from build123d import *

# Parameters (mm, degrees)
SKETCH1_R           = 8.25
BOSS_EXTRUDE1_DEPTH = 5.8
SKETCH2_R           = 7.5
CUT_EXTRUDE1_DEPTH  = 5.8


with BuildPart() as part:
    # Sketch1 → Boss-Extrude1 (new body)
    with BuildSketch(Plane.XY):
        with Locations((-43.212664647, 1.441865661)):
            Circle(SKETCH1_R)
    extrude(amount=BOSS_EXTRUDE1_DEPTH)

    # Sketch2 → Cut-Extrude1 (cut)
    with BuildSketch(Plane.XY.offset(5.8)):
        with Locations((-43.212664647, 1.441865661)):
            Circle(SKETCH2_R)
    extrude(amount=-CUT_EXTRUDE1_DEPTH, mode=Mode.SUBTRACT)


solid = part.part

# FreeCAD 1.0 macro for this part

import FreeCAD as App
import Part
import Sketcher

V = App.Vector
Q = App.Units.Quantity

doc = App.newDocument("Part")
body = doc.addObject("PartDesign::Body", "Body")

sketch1 = body.newObject("Sketcher::SketchObject", "Sketch")
sketch1.AttachmentSupport = (doc.getObject("XY_Plane"), [""])
sketch1.MapMode = "FlatFace"
sketch1.addGeometry(Part.Circle(V(-43, 1, 0), V(0, 0, 1), 8), False)
sketch1.addConstraint(Sketcher.Constraint("Diameter", 0, Q("16.5 mm")))
sketch1.addConstraint(Sketcher.Constraint("DistanceX", 0, 3, -1, 1, Q("43.212665 mm")))
sketch1.addConstraint(Sketcher.Constraint("DistanceY", -1, 1, 0, 3, Q("1.441866 mm")))
pad1 = body.newObject("PartDesign::Pad", "Pad")
pad1.Profile = sketch1
pad1.Length = 5.8

sketch2 = body.newObject("Sketcher::SketchObject", "Sketch001")
sketch2.AttachmentSupport = (doc.getObject("XY_Plane"), [""])
sketch2.MapMode = "FlatFace"
sketch2.AttachmentOffset = App.Placement(V(0, 0, 5.8), App.Rotation())
sketch2.addGeometry(Part.Circle(V(-43, 1, 0), V(0, 0, 1), 8), False)
sketch2.addConstraint(Sketcher.Constraint("Diameter", 0, Q("15 mm")))
sketch2.addConstraint(Sketcher.Constraint("DistanceX", 0, 3, -1, 1, Q("43.212665 mm")))
sketch2.addConstraint(Sketcher.Constraint("DistanceY", -1, 1, 0, 3, Q("1.441866 mm")))
pocket1 = body.newObject("PartDesign::Pocket", "Pocket")
pocket1.Profile = sketch2
pocket1.Length = 5.8

doc.recompute()
